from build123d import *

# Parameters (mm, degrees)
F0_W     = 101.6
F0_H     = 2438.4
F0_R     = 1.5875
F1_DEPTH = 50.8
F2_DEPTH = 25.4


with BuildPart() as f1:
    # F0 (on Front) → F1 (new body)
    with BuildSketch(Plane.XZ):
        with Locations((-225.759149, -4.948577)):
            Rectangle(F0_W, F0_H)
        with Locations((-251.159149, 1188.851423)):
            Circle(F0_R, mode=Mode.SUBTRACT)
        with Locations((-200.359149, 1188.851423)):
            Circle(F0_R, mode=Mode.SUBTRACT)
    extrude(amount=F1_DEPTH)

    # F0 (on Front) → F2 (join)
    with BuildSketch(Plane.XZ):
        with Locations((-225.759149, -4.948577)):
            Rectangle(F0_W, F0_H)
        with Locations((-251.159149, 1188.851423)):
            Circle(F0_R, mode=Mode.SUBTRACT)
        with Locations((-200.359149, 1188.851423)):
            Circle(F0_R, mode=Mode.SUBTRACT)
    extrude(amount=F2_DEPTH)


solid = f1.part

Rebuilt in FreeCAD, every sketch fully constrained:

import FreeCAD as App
import Part
import Sketcher
from FreeCAD import Vector
Q = App.Units.Quantity


def add_polygon(sketch, points):
    """Adds a closed chain of lines whose ends are joined by coincident constraints."""
    first, n = sketch.GeometryCount, len(points)
    for a, b in zip(points, points[1:] + points[:1]):
        sketch.addGeometry(Part.LineSegment(App.Vector(*a, 0), App.Vector(*b, 0)), False)
    for i in range(n):
        sketch.addConstraint(Sketcher.Constraint("Coincident", first + i, 2, first + (i + 1) % n, 1))

doc = App.newDocument("Part")
params = doc.addObject("Spreadsheet::Sheet", "Params")
for row, (alias, value) in enumerate([
    ("sketch1_width", "4 in"),
    ("sketch1_height", "96 in"),
    ("sketch1_diameter", "0.125 in"),
    ("pad1_length", "2 in"),
    ("sketch2_width", "4 in"),
    ("sketch2_height", "96 in"),
    ("sketch2_diameter", "0.125 in"),
    ("pad2_length", "1 in"),
], start=1):
    params.set(f"A{row}", alias)
    params.set(f"B{row}", "=" + value)
    params.setAlias(f"B{row}", alias)

body = doc.addObject("PartDesign::Body", "Body")

# Sketch on XZ plane
sketch1 = body.newObject("Sketcher::SketchObject", "Sketch")
sketch1.AttachmentSupport = (doc.getObject("XZ_Plane"), [""])
sketch1.MapMode = "FlatFace"
add_polygon(sketch1, [(-276.6, 1214.3), (-276.6, -1224.1), (-175, -1224.1), (-175, 1214.3)])  # lines 0-3
sketch1.addGeometry(Part.Circle(Vector(-251.2, 1188.9, 0), Vector(0, 0, 1), 1.6), False)  # 4
sketch1.addGeometry(Part.Circle(Vector(-200.4, 1188.9, 0), Vector(0, 0, 1), 1.6), False)  # 5
sketch1.addConstraint([
    Sketcher.Constraint("Vertical", 0),
    Sketcher.Constraint("Horizontal", 1),
    Sketcher.Constraint("Vertical", 2),
    Sketcher.Constraint("Horizontal", 3),
    Sketcher.Constraint("Equal", 4, 5),
    Sketcher.Constraint("Horizontal", 4, 3, 5, 3),
    Sketcher.Constraint("DistanceX", 1, 1, 1, 2, Q("4 in")),
    Sketcher.Constraint("DistanceY", 0, 2, 0, 1, Q("96 in")),
    Sketcher.Constraint("Diameter", 4, Q("0.125 in")),
    Sketcher.Constraint("DistanceX", 4, 3, 5, 3, Q("2 in")),
    Sketcher.Constraint("DistanceX", 0, 2, 4, 3, Q("1 in")),
    Sketcher.Constraint("DistanceY", 0, 2, 4, 3, Q("95 in")),
    Sketcher.Constraint("DistanceX", 4, 3, -1, 1, Q("251.159149 mm")),
    Sketcher.Constraint("DistanceY", -1, 1, 4, 3, Q("1188.851423 mm")),
])
sketch1.setExpression("Constraints[10]", "Params.sketch1_width")
sketch1.setExpression("Constraints[11]", "Params.sketch1_height")
sketch1.setExpression("Constraints[12]", "Params.sketch1_diameter")
pad1 = body.newObject("PartDesign::Pad", "Pad")
pad1.Profile = sketch1
pad1.setExpression("Length", "Params.pad1_length")

# Sketch on XZ plane
sketch2 = body.newObject("Sketcher::SketchObject", "Sketch001")
sketch2.AttachmentSupport = (doc.getObject("XZ_Plane"), [""])
sketch2.MapMode = "FlatFace"
add_polygon(sketch2, [(-276.6, 1214.3), (-276.6, -1224.1), (-175, -1224.1), (-175, 1214.3)])  # lines 0-3
sketch2.addGeometry(Part.Circle(Vector(-251.2, 1188.9, 0), Vector(0, 0, 1), 1.6), False)  # 4
sketch2.addGeometry(Part.Circle(Vector(-200.4, 1188.9, 0), Vector(0, 0, 1), 1.6), False)  # 5
sketch2.addConstraint([
    Sketcher.Constraint("Vertical", 0),
    Sketcher.Constraint("Horizontal", 1),
    Sketcher.Constraint("Vertical", 2),
    Sketcher.Constraint("Horizontal", 3),
    Sketcher.Constraint("Equal", 4, 5),
    Sketcher.Constraint("Horizontal", 4, 3, 5, 3),
    Sketcher.Constraint("DistanceX", 1, 1, 1, 2, Q("4 in")),
    Sketcher.Constraint("DistanceY", 0, 2, 0, 1, Q("96 in")),
    Sketcher.Constraint("Diameter", 4, Q("0.125 in")),
    Sketcher.Constraint("DistanceX", 4, 3, 5, 3, Q("2 in")),
    Sketcher.Constraint("DistanceX", 0, 2, 4, 3, Q("1 in")),
    Sketcher.Constraint("DistanceY", 0, 2, 4, 3, Q("95 in")),
    Sketcher.Constraint("DistanceX", 4, 3, -1, 1, Q("251.159149 mm")),
    Sketcher.Constraint("DistanceY", -1, 1, 4, 3, Q("1188.851423 mm")),
])
sketch2.setExpression("Constraints[10]", "Params.sketch2_width")
sketch2.setExpression("Constraints[11]", "Params.sketch2_height")
sketch2.setExpression("Constraints[12]", "Params.sketch2_diameter")
pad2 = body.newObject("PartDesign::Pad", "Pad001")
pad2.Profile = sketch2
pad2.setExpression("Length", "Params.pad2_length")

doc.recompute()
